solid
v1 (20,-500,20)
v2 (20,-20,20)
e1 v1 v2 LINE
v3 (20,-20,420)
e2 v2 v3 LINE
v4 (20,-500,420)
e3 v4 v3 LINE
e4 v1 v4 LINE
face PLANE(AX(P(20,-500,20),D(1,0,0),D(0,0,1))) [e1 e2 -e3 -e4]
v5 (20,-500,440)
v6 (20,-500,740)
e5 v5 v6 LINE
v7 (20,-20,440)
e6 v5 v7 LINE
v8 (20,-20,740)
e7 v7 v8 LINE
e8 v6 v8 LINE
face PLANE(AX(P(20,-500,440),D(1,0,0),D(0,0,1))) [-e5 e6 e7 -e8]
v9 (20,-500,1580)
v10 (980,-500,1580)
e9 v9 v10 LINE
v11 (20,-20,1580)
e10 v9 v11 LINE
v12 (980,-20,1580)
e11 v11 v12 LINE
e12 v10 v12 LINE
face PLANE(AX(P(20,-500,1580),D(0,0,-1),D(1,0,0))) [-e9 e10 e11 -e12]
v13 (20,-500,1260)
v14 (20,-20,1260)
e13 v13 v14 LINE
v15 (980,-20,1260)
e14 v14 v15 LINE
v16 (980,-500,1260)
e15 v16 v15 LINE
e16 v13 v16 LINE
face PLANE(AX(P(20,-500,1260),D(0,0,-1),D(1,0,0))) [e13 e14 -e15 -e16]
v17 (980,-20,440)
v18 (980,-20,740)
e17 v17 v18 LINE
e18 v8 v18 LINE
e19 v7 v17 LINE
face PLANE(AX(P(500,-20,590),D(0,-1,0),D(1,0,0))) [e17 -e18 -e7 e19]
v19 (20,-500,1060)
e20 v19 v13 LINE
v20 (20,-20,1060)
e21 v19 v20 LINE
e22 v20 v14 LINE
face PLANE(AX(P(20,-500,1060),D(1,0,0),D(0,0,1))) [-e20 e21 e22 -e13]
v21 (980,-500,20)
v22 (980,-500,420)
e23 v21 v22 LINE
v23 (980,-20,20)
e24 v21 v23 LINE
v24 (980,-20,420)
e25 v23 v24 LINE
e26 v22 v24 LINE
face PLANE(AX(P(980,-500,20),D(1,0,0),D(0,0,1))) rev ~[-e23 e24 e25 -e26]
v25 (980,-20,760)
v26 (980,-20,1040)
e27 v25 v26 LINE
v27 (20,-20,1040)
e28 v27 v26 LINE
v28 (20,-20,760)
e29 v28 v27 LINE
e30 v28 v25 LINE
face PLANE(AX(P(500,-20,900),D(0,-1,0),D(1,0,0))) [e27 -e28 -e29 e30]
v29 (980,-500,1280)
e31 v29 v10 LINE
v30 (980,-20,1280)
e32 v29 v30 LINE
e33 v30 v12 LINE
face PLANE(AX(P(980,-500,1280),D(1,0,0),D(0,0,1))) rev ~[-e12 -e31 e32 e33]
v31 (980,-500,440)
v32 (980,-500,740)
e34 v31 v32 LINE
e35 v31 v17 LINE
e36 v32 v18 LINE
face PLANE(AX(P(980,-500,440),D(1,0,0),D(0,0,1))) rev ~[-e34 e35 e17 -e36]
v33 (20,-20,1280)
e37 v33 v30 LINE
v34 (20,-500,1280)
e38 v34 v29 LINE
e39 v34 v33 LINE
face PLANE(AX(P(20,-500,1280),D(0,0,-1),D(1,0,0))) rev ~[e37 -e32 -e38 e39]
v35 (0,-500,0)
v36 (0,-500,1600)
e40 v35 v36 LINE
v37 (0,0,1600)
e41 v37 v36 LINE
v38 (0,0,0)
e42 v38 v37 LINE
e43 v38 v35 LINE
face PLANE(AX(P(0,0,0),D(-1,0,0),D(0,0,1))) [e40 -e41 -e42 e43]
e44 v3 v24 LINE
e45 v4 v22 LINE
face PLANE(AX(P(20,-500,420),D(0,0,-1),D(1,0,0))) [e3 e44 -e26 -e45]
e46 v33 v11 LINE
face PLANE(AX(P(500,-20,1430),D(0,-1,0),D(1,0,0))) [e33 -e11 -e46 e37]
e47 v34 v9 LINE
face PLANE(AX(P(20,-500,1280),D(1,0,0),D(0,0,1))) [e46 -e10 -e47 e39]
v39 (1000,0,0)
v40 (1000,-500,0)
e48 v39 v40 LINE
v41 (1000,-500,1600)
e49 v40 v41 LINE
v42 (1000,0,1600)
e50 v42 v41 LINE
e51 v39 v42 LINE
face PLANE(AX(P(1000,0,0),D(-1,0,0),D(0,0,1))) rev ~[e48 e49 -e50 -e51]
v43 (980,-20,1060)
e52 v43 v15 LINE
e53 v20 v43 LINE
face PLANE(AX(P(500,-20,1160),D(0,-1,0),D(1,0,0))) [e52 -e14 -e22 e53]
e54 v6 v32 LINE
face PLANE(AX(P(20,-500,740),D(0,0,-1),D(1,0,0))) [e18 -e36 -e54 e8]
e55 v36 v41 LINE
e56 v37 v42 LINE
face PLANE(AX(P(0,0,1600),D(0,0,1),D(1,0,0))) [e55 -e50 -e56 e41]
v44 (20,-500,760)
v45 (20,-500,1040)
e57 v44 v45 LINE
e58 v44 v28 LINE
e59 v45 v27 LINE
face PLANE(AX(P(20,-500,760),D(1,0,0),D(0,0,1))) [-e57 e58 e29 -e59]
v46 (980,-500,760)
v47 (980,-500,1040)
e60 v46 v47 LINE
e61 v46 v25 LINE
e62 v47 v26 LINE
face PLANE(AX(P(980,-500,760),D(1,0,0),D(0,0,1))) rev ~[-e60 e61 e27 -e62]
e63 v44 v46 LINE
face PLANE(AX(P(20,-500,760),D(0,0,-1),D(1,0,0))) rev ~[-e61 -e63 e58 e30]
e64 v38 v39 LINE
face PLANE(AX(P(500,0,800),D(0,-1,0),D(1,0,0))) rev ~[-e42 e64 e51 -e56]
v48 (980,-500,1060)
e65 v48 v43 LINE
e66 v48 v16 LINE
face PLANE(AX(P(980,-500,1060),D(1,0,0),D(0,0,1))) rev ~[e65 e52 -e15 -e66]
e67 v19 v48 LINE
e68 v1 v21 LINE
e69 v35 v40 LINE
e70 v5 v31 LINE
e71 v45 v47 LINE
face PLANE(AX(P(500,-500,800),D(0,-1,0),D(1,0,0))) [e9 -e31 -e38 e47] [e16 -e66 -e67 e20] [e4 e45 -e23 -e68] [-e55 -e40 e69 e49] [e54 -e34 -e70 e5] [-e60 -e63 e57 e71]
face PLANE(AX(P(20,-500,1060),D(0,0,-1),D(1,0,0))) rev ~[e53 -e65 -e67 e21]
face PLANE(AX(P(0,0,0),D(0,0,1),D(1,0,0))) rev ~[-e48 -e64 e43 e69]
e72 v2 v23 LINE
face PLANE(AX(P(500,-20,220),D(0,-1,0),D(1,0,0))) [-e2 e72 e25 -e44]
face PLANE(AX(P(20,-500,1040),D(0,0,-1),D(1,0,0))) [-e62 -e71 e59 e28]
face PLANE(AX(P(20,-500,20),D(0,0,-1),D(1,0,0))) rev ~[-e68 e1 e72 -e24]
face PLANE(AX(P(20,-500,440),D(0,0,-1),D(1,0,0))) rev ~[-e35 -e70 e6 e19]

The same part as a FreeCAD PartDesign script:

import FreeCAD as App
import Part
import Sketcher

V = App.Vector
Q = App.Units.Quantity


def add_polygon(sketch, points):
    """Adds a closed chain of lines whose ends are joined by coincident constraints."""
    first, n = sketch.GeometryCount, len(points)
    for a, b in zip(points, points[1:] + points[:1]):
        sketch.addGeometry(Part.LineSegment(App.Vector(*a, 0), App.Vector(*b, 0)), False)
    for i in range(n):
        sketch.addConstraint(Sketcher.Constraint("Coincident", first + i, 2, first + (i + 1) % n, 1))

doc = App.newDocument("Part")
body = doc.addObject("PartDesign::Body", "Body")

sketch1 = doc.addObject("Sketcher::SketchObject", "Sketch")
body.addObject(sketch1)
sketch1.AttachmentSupport = (doc.XZ_Plane, [""])
sketch1.MapMode = "FlatFace"
add_polygon(sketch1, [(0, 1600), (0, 0), (1000, 0), (1000, 1600)])
sketch1.addConstraint(Sketcher.Constraint("Vertical", 0))
sketch1.addConstraint(Sketcher.Constraint("Horizontal", 1))
sketch1.addConstraint(Sketcher.Constraint("Vertical", 2))
sketch1.addConstraint(Sketcher.Constraint("Horizontal", 3))
sketch1.addConstraint(Sketcher.Constraint("Coincident", 0, 2, -1, 1))
sketch1.addConstraint(Sketcher.Constraint("DistanceX", 1, 1, 1, 2, Q("1000 mm")))
sketch1.addConstraint(Sketcher.Constraint("DistanceY", 0, 2, 0, 1, Q("1600 mm")))
pad1 = doc.addObject("PartDesign::Pad", "Pad")
body.addObject(pad1)
pad1.Profile = sketch1
pad1.Length = 500

sketch2 = doc.addObject("Sketcher::SketchObject", "Sketch001")
body.addObject(sketch2)
sketch2.AttachmentSupport = (doc.XZ_Plane, [""])
sketch2.MapMode = "FlatFace"
sketch2.AttachmentOffset = App.Placement(V(0, 0, 500), App.Rotation())
add_polygon(sketch2, [(20, 420), (20, 20), (980, 20), (980, 420)])
add_polygon(sketch2, [(20, 740), (20, 440), (980, 440), (980, 740)])
add_polygon(sketch2, [(20, 1040), (20, 760), (980, 760), (980, 1040)])
add_polygon(sketch2, [(20, 1260), (20, 1060), (980, 1060), (980, 1260)])
add_polygon(sketch2, [(20, 1580), (20, 1280), (980, 1280), (980, 1580)])
sketch2.addConstraint(Sketcher.Constraint("Vertical", 0))
sketch2.addConstraint(Sketcher.Constraint("Horizontal", 1))
sketch2.addConstraint(Sketcher.Constraint("Vertical", 2))
sketch2.addConstraint(Sketcher.Constraint("Horizontal", 3))
sketch2.addConstraint(Sketcher.Constraint("Vertical", 4))
sketch2.addConstraint(Sketcher.Constraint("Horizontal", 5))
sketch2.addConstraint(Sketcher.Constraint("Vertical", 6))
sketch2.addConstraint(Sketcher.Constraint("Horizontal", 7))
sketch2.addConstraint(Sketcher.Constraint("Vertical", 8))
sketch2.addConstraint(Sketcher.Constraint("Horizontal", 9))
sketch2.addConstraint(Sketcher.Constraint("Vertical", 10))
sketch2.addConstraint(Sketcher.Constraint("Horizontal", 11))
sketch2.addConstraint(Sketcher.Constraint("Vertical", 12))
sketch2.addConstraint(Sketcher.Constraint("Horizontal", 13))
sketch2.addConstraint(Sketcher.Constraint("Vertical", 14))
sketch2.addConstraint(Sketcher.Constraint("Horizontal", 15))
sketch2.addConstraint(Sketcher.Constraint("Vertical", 16))
sketch2.addConstraint(Sketcher.Constraint("Horizontal", 17))
sketch2.addConstraint(Sketcher.Constraint("Vertical", 18))
sketch2.addConstraint(Sketcher.Constraint("Horizontal", 19))
sketch2.addConstraint(Sketcher.Constraint("Vertical", 3, 2, 4, 2))
sketch2.addConstraint(Sketcher.Constraint("Vertical", 2, 2, 5, 2))
sketch2.addConstraint(Sketcher.Constraint("Vertical", 7, 2, 8, 2))
sketch2.addConstraint(Sketcher.Constraint("Vertical", 6, 2, 9, 2))
sketch2.addConstraint(Sketcher.Constraint("Vertical", 11, 2, 12, 2))
sketch2.addConstraint(Sketcher.Constraint("Vertical", 10, 2, 13, 2))
sketch2.addConstraint(Sketcher.Constraint("Vertical", 15, 2, 16, 2))
sketch2.addConstraint(Sketcher.Constraint("Vertical", 14, 2, 17, 2))
sketch2.addConstraint(Sketcher.Constraint("Equal", 6, 16))
sketch2.addConstraint(Sketcher.Constraint("DistanceX", 1, 1, 1, 2, Q("960 mm")))
sketch2.addConstraint(Sketcher.Constraint("DistanceY", 0, 2, 0, 1, Q("400 mm")))
sketch2.addConstraint(Sketcher.Constraint("DistanceY", 4, 2, 4, 1, Q("300 mm")))
sketch2.addConstraint(Sketcher.Constraint("DistanceY", 8, 2, 8, 1, Q("280 mm")))
sketch2.addConstraint(Sketcher.Constraint("DistanceY", 12, 2, 12, 1, Q("200 mm")))
sketch2.addConstraint(Sketcher.Constraint("DistanceX", -1, 1, 0, 2, Q("20 mm")))
sketch2.addConstraint(Sketcher.Constraint("DistanceY", -1, 1, 0, 2, Q("20 mm")))
sketch2.addConstraint(Sketcher.Constraint("DistanceY", -1, 1, 4, 2, Q("440 mm")))
sketch2.addConstraint(Sketcher.Constraint("DistanceY", -1, 1, 8, 2, Q("760 mm")))
sketch2.addConstraint(Sketcher.Constraint("DistanceY", -1, 1, 12, 2, Q("1060 mm")))
sketch2.addConstraint(Sketcher.Constraint("DistanceY", -1, 1, 16, 2, Q("1280 mm")))
pocket1 = doc.addObject("PartDesign::Pocket", "Pocket")
body.addObject(pocket1)
pocket1.Profile = sketch2
pocket1.Length = 480

doc.recompute()
